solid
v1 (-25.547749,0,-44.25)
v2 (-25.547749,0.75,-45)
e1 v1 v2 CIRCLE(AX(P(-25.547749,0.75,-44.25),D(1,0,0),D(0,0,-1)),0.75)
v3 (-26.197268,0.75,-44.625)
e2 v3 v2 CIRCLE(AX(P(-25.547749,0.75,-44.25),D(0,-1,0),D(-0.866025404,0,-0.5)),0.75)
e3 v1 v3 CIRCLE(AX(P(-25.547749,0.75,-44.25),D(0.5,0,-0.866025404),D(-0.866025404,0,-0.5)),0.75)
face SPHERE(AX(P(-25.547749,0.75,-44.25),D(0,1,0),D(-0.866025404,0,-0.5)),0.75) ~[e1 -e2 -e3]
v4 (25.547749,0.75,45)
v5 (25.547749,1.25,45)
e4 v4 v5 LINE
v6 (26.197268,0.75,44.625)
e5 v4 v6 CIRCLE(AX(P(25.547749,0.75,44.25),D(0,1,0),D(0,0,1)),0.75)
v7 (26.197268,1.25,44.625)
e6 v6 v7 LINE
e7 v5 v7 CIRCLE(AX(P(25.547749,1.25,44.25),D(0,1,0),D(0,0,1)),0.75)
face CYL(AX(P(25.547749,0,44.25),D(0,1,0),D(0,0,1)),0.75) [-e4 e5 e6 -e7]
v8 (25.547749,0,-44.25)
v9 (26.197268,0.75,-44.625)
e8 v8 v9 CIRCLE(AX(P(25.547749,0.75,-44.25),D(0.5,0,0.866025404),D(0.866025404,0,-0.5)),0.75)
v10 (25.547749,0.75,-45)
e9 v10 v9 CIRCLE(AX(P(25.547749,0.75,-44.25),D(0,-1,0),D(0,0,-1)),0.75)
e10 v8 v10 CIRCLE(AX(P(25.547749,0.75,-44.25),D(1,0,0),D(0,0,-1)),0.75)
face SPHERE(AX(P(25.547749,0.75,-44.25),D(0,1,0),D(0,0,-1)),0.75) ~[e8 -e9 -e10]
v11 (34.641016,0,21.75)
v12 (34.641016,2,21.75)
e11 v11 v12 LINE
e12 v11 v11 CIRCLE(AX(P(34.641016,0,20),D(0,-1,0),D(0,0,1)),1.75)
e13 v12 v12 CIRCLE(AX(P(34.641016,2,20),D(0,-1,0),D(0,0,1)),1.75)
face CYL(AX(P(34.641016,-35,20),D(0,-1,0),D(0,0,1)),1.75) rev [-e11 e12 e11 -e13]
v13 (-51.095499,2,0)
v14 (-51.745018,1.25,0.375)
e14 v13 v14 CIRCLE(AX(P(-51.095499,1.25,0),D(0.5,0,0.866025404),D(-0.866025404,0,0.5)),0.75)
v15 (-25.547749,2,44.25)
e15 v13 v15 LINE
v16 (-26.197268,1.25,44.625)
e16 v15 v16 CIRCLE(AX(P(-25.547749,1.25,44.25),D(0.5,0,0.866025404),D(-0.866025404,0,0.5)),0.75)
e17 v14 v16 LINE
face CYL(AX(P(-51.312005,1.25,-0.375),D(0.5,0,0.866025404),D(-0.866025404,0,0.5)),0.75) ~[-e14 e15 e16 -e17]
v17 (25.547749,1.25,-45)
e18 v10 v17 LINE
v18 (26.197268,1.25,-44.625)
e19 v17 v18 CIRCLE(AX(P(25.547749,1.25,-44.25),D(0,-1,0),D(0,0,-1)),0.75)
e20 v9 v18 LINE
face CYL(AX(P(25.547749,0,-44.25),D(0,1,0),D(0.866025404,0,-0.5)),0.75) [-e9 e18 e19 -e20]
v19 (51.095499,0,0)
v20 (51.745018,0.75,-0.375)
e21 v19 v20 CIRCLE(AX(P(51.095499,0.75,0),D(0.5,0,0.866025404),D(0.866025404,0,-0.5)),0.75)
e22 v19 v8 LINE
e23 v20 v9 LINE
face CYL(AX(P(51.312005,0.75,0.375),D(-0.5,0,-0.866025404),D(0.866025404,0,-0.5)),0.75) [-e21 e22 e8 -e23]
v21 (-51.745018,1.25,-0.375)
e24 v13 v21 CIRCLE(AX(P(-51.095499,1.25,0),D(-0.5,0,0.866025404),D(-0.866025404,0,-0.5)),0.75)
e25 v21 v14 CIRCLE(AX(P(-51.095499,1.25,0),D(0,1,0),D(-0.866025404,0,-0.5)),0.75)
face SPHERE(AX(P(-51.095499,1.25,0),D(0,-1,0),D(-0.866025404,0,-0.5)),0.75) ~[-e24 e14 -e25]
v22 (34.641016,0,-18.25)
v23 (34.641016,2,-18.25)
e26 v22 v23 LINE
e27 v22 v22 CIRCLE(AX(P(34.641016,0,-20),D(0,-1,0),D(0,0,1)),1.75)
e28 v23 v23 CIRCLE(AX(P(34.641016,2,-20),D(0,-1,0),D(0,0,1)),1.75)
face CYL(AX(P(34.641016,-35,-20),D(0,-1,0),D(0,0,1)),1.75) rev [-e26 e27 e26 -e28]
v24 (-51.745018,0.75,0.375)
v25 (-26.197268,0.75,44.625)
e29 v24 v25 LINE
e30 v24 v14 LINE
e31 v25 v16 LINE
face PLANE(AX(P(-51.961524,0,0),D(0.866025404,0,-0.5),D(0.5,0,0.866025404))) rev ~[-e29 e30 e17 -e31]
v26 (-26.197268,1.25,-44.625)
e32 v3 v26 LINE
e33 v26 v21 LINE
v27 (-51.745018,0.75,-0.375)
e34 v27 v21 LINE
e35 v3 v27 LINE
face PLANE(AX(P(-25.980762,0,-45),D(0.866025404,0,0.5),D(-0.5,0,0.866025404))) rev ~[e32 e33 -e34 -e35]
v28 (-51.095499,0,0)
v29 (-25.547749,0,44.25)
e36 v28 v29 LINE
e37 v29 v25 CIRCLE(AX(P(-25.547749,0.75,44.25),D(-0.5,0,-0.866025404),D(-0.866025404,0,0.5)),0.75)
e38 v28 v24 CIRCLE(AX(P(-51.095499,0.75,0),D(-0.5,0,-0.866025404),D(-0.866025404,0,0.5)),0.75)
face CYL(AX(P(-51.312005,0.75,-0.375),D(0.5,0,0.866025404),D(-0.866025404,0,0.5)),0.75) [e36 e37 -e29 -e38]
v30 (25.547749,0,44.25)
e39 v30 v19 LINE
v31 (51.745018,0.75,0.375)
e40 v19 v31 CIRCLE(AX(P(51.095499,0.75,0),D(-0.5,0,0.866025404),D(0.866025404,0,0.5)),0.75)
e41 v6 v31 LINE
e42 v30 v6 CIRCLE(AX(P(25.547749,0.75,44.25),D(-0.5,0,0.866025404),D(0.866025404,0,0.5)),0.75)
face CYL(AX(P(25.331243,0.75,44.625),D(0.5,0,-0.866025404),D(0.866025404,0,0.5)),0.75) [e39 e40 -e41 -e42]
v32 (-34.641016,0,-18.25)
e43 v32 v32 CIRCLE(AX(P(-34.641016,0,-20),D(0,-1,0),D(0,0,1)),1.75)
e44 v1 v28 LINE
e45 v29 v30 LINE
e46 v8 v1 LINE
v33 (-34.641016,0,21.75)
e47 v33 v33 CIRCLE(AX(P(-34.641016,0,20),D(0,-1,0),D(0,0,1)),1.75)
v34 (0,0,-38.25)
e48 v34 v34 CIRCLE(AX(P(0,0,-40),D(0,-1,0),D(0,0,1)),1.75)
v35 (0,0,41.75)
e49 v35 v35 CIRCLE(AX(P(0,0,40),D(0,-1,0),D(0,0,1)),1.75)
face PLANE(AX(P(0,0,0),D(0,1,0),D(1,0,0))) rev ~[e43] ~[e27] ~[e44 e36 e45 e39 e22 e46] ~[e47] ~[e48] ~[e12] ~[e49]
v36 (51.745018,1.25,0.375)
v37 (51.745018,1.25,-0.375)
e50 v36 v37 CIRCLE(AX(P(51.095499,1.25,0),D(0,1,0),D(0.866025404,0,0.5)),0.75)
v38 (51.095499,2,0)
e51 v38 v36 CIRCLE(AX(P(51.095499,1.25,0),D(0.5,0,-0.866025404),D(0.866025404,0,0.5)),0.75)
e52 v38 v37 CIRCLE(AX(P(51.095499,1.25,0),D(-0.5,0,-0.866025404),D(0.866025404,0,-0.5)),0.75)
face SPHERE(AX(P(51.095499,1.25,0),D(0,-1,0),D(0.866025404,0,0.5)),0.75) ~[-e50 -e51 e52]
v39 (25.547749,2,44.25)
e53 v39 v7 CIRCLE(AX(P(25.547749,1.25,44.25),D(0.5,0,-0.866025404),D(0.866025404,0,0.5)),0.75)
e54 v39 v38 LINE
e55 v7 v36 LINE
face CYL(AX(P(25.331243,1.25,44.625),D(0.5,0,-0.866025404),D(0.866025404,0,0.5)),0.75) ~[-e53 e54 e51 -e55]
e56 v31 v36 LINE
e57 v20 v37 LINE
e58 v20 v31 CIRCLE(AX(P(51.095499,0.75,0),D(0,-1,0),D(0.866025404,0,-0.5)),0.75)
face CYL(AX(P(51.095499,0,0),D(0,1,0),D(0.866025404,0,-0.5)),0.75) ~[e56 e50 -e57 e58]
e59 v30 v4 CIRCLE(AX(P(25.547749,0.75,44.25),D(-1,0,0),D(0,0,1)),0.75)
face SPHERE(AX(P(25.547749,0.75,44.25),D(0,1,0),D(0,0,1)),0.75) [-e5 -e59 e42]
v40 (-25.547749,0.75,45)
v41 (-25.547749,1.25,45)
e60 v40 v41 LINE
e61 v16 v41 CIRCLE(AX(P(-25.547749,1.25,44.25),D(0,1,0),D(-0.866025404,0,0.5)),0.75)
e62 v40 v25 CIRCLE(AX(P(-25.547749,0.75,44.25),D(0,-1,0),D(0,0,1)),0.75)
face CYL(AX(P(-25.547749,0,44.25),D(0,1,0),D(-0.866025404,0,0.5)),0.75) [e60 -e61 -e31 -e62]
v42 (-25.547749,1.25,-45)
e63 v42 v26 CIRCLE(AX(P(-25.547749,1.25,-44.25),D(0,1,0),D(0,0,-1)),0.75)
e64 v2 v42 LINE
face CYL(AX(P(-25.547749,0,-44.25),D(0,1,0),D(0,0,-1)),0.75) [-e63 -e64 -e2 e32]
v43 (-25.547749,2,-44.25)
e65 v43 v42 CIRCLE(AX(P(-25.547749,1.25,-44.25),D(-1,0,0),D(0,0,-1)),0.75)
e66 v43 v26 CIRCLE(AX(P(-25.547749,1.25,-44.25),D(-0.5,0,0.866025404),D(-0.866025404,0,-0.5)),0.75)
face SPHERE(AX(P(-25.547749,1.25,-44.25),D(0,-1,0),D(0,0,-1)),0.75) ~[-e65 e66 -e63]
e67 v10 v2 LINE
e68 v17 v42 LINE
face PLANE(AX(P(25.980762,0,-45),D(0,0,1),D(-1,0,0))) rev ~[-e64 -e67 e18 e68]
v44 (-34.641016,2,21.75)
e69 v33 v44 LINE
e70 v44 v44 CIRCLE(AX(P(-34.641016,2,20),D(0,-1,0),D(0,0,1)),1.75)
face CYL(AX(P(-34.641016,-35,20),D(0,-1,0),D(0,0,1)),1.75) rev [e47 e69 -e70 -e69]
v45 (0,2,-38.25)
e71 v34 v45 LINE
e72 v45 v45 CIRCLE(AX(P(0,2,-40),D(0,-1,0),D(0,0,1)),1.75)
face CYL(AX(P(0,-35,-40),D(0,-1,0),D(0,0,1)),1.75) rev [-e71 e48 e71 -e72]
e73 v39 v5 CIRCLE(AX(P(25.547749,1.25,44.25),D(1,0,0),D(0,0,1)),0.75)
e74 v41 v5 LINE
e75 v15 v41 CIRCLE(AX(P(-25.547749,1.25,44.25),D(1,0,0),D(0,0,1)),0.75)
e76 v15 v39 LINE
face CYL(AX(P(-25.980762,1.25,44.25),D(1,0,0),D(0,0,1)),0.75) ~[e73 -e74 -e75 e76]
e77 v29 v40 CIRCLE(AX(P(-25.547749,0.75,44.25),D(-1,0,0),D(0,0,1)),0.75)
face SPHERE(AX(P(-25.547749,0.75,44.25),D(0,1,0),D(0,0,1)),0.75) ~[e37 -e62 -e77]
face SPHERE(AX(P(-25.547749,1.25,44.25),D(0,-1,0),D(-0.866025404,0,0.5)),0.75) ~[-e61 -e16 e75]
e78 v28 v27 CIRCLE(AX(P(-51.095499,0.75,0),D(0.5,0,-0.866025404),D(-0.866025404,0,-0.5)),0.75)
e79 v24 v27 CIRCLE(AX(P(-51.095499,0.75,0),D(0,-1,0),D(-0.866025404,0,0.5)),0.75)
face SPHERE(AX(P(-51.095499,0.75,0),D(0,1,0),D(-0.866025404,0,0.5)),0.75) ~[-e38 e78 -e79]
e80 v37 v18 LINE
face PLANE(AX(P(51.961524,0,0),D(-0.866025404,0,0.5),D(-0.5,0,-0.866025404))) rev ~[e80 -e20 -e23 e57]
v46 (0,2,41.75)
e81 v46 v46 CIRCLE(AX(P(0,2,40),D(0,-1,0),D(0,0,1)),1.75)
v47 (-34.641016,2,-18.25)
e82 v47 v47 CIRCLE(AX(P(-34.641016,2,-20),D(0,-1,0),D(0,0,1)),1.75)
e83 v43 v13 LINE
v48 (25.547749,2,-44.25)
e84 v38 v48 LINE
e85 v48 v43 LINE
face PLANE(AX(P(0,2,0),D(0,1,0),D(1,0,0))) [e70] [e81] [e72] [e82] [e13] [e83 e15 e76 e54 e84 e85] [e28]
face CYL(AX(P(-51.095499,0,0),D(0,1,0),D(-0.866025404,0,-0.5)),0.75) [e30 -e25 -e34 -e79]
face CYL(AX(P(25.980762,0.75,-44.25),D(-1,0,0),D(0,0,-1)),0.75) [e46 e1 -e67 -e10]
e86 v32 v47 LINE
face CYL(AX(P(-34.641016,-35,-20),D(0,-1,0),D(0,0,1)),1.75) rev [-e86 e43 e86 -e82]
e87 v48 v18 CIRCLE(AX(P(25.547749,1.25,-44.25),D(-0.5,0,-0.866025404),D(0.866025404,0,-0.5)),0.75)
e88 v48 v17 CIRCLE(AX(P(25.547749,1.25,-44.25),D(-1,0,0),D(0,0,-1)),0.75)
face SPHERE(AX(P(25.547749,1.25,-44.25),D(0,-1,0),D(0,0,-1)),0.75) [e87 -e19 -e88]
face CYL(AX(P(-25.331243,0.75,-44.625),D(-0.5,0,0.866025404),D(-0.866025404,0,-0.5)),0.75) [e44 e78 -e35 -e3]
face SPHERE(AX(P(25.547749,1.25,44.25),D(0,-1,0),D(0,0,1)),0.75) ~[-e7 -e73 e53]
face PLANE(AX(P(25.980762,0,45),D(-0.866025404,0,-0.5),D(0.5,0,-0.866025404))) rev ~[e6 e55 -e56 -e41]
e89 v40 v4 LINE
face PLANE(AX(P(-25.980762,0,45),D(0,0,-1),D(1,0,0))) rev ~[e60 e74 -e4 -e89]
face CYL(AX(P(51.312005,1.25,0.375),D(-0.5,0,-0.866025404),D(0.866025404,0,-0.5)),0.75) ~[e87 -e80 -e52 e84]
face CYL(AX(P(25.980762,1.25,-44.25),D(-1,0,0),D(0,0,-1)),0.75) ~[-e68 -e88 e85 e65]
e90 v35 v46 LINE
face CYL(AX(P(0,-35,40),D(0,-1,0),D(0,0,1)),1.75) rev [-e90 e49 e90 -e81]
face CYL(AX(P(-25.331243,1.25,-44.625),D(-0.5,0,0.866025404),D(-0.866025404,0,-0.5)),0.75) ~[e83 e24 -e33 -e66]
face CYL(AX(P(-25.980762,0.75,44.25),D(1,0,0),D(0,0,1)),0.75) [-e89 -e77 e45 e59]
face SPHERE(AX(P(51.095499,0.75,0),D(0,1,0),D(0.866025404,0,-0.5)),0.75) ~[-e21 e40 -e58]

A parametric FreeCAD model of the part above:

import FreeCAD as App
import Part
import Sketcher
from FreeCAD import Vector
Q = App.Units.Quantity

doc = App.newDocument("Part")
body = doc.addObject("PartDesign::Body", "Body")

# Sketch on XZ plane
sketch1 = doc.addObject("Sketcher::SketchObject", "Sketch")
body.addObject(sketch1)
sketch1.AttachmentSupport = (doc.XZ_Plane, [""])
sketch1.MapMode = "FlatFace"
sketch1.addGeometry([
    Part.LineSegment(Vector(52, 0, 0), Vector(26, -45, 0)),  # 0
    Part.LineSegment(Vector(26, -45, 0), Vector(-26, -45, 0)),  # 1
    Part.LineSegment(Vector(-26, -45, 0), Vector(-52, 0, 0)),  # 2
    Part.LineSegment(Vector(-52, 0, 0), Vector(-26, 45, 0)),  # 3
    Part.LineSegment(Vector(-26, 45, 0), Vector(26, 45, 0)),  # 4
    Part.LineSegment(Vector(26, 45, 0), Vector(52, 0, 0)),  # 5
], False)
sketch1.addConstraint([
    Sketcher.Constraint("Coincident", 0, 2, 1, 1),
    Sketcher.Constraint("Coincident", 1, 2, 2, 1),
    Sketcher.Constraint("Coincident", 2, 2, 3, 1),
    Sketcher.Constraint("Coincident", 3, 2, 4, 1),
    Sketcher.Constraint("Coincident", 4, 2, 5, 1),
    Sketcher.Constraint("Coincident", 5, 2, 0, 1),
    Sketcher.Constraint("Horizontal", 1),
    Sketcher.Constraint("Horizontal", 4),
    Sketcher.Constraint("Symmetric", 0, 2, 3, 2, -1, 1),
    Sketcher.Constraint("Symmetric", 2, 2, 5, 2, -1, 1),
    Sketcher.Constraint("PointOnObject", 2, 2, -1),
    Sketcher.Constraint("Parallel", 2, 5),
    Sketcher.Constraint("Vertical", 1, 2, 3, 2),
    Sketcher.Constraint("Angle", 0, Q("-120 deg")),
    Sketcher.Constraint("DistanceY", 0, 2, -1, 1, Q("45 mm")),
    Sketcher.Constraint("DistanceX", 1, 2, 1, 1, Q("51.961524 mm")),
])
pad1 = doc.addObject("PartDesign::Pad", "Pad")
body.addObject(pad1)
pad1.Profile = sketch1
pad1.Length = 2
pad1.Reversed = True
doc.recompute()

fillet = doc.addObject("PartDesign::Fillet", "Fillet")
body.addObject(fillet)
fillet.Base = (pad1, ["Edge1"])
fillet.UseAllEdges = True
fillet.Radius = 0.75

# Sketch on XZ plane
sketch2 = doc.addObject("Sketcher::SketchObject", "Sketch001")
body.addObject(sketch2)
sketch2.AttachmentSupport = (doc.XZ_Plane, [""])
sketch2.MapMode = "FlatFace"
sketch2.addGeometry([
    Part.Circle(Vector(0, -40, 0), Vector(0, 0, 1), 1.8),  # 0
    Part.Circle(Vector(34.6, -20, 0), Vector(0, 0, 1), 1.8),  # 1
    Part.Circle(Vector(34.6, 20, 0), Vector(0, 0, 1), 1.8),  # 2
    Part.Circle(Vector(0, 40, 0), Vector(0, 0, 1), 1.8),  # 3
    Part.Circle(Vector(-34.6, 20, 0), Vector(0, 0, 1), 1.8),  # 4
    Part.Circle(Vector(-34.6, -20, 0), Vector(0, 0, 1), 1.8),  # 5
], False)
sketch2.addConstraint([
    Sketcher.Constraint("Equal", 0, 1),
    Sketcher.Constraint("Equal", 1, 2),
    Sketcher.Constraint("Equal", 2, 3),
    Sketcher.Constraint("Equal", 3, 4),
    Sketcher.Constraint("Equal", 4, 5),
    Sketcher.Constraint("Symmetric", 0, 3, 3, 3, -1, 1),
    Sketcher.Constraint("Symmetric", 1, 3, 4, 3, -1, 1),
    Sketcher.Constraint("Symmetric", 2, 3, 5, 3, -1, 1),
    Sketcher.Constraint("Symmetric", 2, 3, 4, 3, -2),
    Sketcher.Constraint("PointOnObject", 0, 3, -2),
    Sketcher.Constraint("Diameter", 0, Q("3.5 mm")),
    Sketcher.Constraint("DistanceY", 0, 3, -1, 1, Q("40 mm")),
    Sketcher.Constraint("DistanceY", 1, 3, -1, 1, Q("20 mm")),
    Sketcher.Constraint("DistanceX", -1, 1, 1, 3, Q("34.641016 mm")),
])
pocket1 = doc.addObject("PartDesign::Pocket", "Pocket")
body.addObject(pocket1)
pocket1.Profile = sketch2
pocket1.Type = "ThroughAll"
pocket1.Midplane = True

doc.recompute()
